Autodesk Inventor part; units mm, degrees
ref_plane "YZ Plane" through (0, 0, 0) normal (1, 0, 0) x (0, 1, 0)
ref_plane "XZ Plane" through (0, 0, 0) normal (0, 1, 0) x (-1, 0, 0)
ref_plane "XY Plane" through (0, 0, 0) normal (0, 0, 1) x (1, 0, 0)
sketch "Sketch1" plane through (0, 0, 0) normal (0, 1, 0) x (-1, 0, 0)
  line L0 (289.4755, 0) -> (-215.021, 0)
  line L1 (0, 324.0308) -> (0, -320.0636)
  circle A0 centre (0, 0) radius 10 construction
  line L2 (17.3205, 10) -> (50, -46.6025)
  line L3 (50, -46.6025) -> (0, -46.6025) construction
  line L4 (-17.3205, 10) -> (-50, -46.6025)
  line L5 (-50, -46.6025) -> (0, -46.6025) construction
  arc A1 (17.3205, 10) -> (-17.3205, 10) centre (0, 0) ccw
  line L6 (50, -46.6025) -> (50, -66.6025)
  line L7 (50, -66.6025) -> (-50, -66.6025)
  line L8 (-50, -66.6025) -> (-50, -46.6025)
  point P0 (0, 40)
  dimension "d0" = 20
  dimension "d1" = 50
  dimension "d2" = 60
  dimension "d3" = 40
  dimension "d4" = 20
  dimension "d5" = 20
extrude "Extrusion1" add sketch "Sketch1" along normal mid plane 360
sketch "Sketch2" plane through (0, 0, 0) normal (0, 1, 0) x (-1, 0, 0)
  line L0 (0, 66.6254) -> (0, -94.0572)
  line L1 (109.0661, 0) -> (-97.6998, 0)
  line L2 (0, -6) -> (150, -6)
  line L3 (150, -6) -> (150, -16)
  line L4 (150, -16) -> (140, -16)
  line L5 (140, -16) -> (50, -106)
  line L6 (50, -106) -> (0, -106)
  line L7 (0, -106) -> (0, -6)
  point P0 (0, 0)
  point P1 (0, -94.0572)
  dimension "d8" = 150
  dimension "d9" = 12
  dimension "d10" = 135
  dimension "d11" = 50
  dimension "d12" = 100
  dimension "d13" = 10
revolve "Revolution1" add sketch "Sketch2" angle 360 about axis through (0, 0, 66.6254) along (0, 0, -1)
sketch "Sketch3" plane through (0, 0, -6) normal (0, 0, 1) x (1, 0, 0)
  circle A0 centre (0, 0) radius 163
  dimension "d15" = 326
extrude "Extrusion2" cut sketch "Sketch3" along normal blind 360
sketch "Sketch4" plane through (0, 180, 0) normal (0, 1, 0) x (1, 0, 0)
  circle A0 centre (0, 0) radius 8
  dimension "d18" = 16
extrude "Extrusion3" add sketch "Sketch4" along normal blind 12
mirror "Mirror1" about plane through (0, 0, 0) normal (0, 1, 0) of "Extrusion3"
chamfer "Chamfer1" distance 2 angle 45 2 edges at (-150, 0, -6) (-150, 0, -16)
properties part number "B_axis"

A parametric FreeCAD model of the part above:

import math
import FreeCAD as App
import Part
import Sketcher

V = App.Vector
Q = App.Units.Quantity


def edges_at(feature, points):
    """Names of the edges that pass closest to the given points."""
    edges = feature.Shape.Edges
    near = lambda p: min(range(len(edges)), key=lambda i: edges[i].distToShape(Part.Vertex(*p))[0])
    return sorted({f"Edge{near(p) + 1}" for p in points})


def add_polygon(sketch, points):
    """Adds a closed chain of lines whose ends are joined by coincident constraints."""
    first, n = sketch.GeometryCount, len(points)
    for a, b in zip(points, points[1:] + points[:1]):
        sketch.addGeometry(Part.LineSegment(App.Vector(*a, 0), App.Vector(*b, 0)), False)
    for i in range(n):
        sketch.addConstraint(Sketcher.Constraint("Coincident", first + i, 2, first + (i + 1) % n, 1))

doc = App.newDocument("Part")
params = doc.addObject("Spreadsheet::Sheet", "Params")
for row, (alias, value) in enumerate([
    ("sketch1_radius", "20 mm"),
    ("sketch1_height", "20 mm"),
    ("pad1_length", "360 mm"),
    ("sketch2_width", "150 mm"),
    ("sketch2_width2", "50 mm"),
    ("sketch2_width3", "10 mm"),
    ("sketch2_height", "100 mm"),
    ("revolution_angle", "360 deg"),
    ("sketch3_diameter", "326 mm"),
    ("pocket1_length", "360 mm"),
    ("sketch4_diameter", "16 mm"),
    ("pad2_length", "12 mm"),
    ("chamfer_size", "2 mm"),
], start=1):
    params.set(f"A{row}", alias)
    params.set(f"B{row}", "=" + value)
    params.setAlias(f"B{row}", alias)

body = doc.addObject("PartDesign::Body", "Body")

sketch1 = body.newObject("Sketcher::SketchObject", "Sketch")
sketch1.AttachmentSupport = (doc.getObject("XZ_Plane"), [""])
sketch1.MapMode = "FlatFace"
sketch1.addGeometry(Part.LineSegment(V(-50, -47, 0), V(-17, 10, 0)), False)
sketch1.addGeometry(Part.ArcOfCircle(Part.Circle(V(0, 0, 0), V(0, 0, 1), 20), math.radians(30), math.radians(150)), False)
sketch1.addGeometry(Part.LineSegment(V(17, 10, 0), V(50, -47, 0)), False)
sketch1.addGeometry(Part.LineSegment(V(50, -47, 0), V(50, -67, 0)), False)
sketch1.addGeometry(Part.LineSegment(V(50, -67, 0), V(-50, -67, 0)), False)
sketch1.addGeometry(Part.LineSegment(V(-50, -67, 0), V(-50, -47, 0)), False)
sketch1.addConstraint(Sketcher.Constraint("Tangent", 0, 2, 1, 2))
sketch1.addConstraint(Sketcher.Constraint("Tangent", 1, 1, 2, 1))
sketch1.addConstraint(Sketcher.Constraint("Coincident", 2, 2, 3, 1))
sketch1.addConstraint(Sketcher.Constraint("Coincident", 3, 2, 4, 1))
sketch1.addConstraint(Sketcher.Constraint("Coincident", 4, 2, 5, 1))
sketch1.addConstraint(Sketcher.Constraint("Coincident", 5, 2, 0, 1))
sketch1.addConstraint(Sketcher.Constraint("Vertical", 3))
sketch1.addConstraint(Sketcher.Constraint("Horizontal", 4))
sketch1.addConstraint(Sketcher.Constraint("Vertical", 5))
sketch1.addConstraint(Sketcher.Constraint("Coincident", 1, 3, -1, 1))
sketch1.addConstraint(Sketcher.Constraint("Symmetric", 2, 2, 5, 2, -2))
sketch1.addConstraint(Sketcher.Constraint("Radius", 1, Q("20 mm")))
sketch1.addConstraint(Sketcher.Constraint("DistanceY", 3, 2, 3, 1, Q("20 mm")))
sketch1.addConstraint(Sketcher.Constraint("Angle", 0, Q("60 deg")))
sketch1.addConstraint(Sketcher.Constraint("DistanceX", -1, 1, 2, 2, Q("50 mm")))
sketch1.setExpression("Constraints[11]", "Params.sketch1_radius")
sketch1.setExpression("Constraints[12]", "Params.sketch1_height")
pad1 = body.newObject("PartDesign::Pad", "Pad")
pad1.Profile = sketch1
pad1.setExpression("Length", "Params.pad1_length")
pad1.Midplane = True

sketch2 = body.newObject("Sketcher::SketchObject", "Sketch001")
sketch2.AttachmentSupport = (doc.getObject("XZ_Plane"), [""])
sketch2.MapMode = "FlatFace"
add_polygon(sketch2, [(-150, -6), (0, -6), (0, -106), (-50, -106), (-140, -16), (-150, -16)])
sketch2.addConstraint(Sketcher.Constraint("Horizontal", 0))
sketch2.addConstraint(Sketcher.Constraint("Vertical", 1))
sketch2.addConstraint(Sketcher.Constraint("Horizontal", 2))
sketch2.addConstraint(Sketcher.Constraint("Horizontal", 4))
sketch2.addConstraint(Sketcher.Constraint("Vertical", 5))
sketch2.addConstraint(Sketcher.Constraint("PointOnObject", 0, 2, -2))
sketch2.addConstraint(Sketcher.Constraint("Equal", 4, 5))
sketch2.addConstraint(Sketcher.Constraint("DistanceX", 0, 1, 0, 2, Q("150 mm")))
sketch2.addConstraint(Sketcher.Constraint("DistanceX", 2, 2, 2, 1, Q("50 mm")))
sketch2.addConstraint(Sketcher.Constraint("DistanceX", 4, 2, 4, 1, Q("10 mm")))
sketch2.addConstraint(Sketcher.Constraint("DistanceY", 1, 2, 1, 1, Q("100 mm")))
sketch2.addConstraint(Sketcher.Constraint("DistanceY", 0, 2, -1, 1, Q("6 mm")))
sketch2.setExpression("Constraints[13]", "Params.sketch2_width")
sketch2.setExpression("Constraints[14]", "Params.sketch2_width2")
sketch2.setExpression("Constraints[15]", "Params.sketch2_width3")
sketch2.setExpression("Constraints[16]", "Params.sketch2_height")
revolution = body.newObject("PartDesign::Revolution", "Revolution")
revolution.Profile = sketch2
revolution.ReferenceAxis = (sketch2, ["V_Axis"])
revolution.setExpression("Angle", "Params.revolution_angle")

sketch3 = body.newObject("Sketcher::SketchObject", "Sketch002")
sketch3.AttachmentSupport = (doc.getObject("XY_Plane"), [""])
sketch3.MapMode = "FlatFace"
sketch3.AttachmentOffset = App.Placement(V(0, 0, -6), App.Rotation())
sketch3.addGeometry(Part.Circle(V(0, 0, 0), V(0, 0, 1), 163), False)
sketch3.addConstraint(Sketcher.Constraint("Coincident", 0, 3, -1, 1))
sketch3.addConstraint(Sketcher.Constraint("Diameter", 0, Q("326 mm")))
sketch3.setExpression("Constraints[1]", "Params.sketch3_diameter")
pocket1 = body.newObject("PartDesign::Pocket", "Pocket")
pocket1.Profile = sketch3
pocket1.setExpression("Length", "Params.pocket1_length")
pocket1.Reversed = True

sketch4 = body.newObject("Sketcher::SketchObject", "Sketch003")
sketch4.AttachmentSupport = (doc.getObject("XZ_Plane"), [""])
sketch4.MapMode = "FlatFace"
sketch4.AttachmentOffset = App.Placement(V(0, 0, -180), App.Rotation())
sketch4.addGeometry(Part.Circle(V(0, 0, 0), V(0, 0, 1), 8), False)
sketch4.addConstraint(Sketcher.Constraint("Coincident", 0, 3, -1, 1))
sketch4.addConstraint(Sketcher.Constraint("Diameter", 0, Q("16 mm")))
sketch4.setExpression("Constraints[1]", "Params.sketch4_diameter")
pad2 = body.newObject("PartDesign::Pad", "Pad001")
pad2.Profile = sketch4
pad2.setExpression("Length", "Params.pad2_length")
pad2.Reversed = True
doc.recompute()

mirrored = body.newObject("PartDesign::Mirrored", "Mirrored")
mirrored.Originals = [pad2]
mirrored.MirrorPlane = (doc.getObject("XZ_Plane"), [""])
body.Tip = mirrored
doc.recompute()

chamfer = body.newObject("PartDesign::Chamfer", "Chamfer")
chamfer.Base = (mirrored, edges_at(mirrored, [(-150, 0, -6), (-150, 0, -16)]))
chamfer.setExpression("Size", "Params.chamfer_size")

doc.recompute()
